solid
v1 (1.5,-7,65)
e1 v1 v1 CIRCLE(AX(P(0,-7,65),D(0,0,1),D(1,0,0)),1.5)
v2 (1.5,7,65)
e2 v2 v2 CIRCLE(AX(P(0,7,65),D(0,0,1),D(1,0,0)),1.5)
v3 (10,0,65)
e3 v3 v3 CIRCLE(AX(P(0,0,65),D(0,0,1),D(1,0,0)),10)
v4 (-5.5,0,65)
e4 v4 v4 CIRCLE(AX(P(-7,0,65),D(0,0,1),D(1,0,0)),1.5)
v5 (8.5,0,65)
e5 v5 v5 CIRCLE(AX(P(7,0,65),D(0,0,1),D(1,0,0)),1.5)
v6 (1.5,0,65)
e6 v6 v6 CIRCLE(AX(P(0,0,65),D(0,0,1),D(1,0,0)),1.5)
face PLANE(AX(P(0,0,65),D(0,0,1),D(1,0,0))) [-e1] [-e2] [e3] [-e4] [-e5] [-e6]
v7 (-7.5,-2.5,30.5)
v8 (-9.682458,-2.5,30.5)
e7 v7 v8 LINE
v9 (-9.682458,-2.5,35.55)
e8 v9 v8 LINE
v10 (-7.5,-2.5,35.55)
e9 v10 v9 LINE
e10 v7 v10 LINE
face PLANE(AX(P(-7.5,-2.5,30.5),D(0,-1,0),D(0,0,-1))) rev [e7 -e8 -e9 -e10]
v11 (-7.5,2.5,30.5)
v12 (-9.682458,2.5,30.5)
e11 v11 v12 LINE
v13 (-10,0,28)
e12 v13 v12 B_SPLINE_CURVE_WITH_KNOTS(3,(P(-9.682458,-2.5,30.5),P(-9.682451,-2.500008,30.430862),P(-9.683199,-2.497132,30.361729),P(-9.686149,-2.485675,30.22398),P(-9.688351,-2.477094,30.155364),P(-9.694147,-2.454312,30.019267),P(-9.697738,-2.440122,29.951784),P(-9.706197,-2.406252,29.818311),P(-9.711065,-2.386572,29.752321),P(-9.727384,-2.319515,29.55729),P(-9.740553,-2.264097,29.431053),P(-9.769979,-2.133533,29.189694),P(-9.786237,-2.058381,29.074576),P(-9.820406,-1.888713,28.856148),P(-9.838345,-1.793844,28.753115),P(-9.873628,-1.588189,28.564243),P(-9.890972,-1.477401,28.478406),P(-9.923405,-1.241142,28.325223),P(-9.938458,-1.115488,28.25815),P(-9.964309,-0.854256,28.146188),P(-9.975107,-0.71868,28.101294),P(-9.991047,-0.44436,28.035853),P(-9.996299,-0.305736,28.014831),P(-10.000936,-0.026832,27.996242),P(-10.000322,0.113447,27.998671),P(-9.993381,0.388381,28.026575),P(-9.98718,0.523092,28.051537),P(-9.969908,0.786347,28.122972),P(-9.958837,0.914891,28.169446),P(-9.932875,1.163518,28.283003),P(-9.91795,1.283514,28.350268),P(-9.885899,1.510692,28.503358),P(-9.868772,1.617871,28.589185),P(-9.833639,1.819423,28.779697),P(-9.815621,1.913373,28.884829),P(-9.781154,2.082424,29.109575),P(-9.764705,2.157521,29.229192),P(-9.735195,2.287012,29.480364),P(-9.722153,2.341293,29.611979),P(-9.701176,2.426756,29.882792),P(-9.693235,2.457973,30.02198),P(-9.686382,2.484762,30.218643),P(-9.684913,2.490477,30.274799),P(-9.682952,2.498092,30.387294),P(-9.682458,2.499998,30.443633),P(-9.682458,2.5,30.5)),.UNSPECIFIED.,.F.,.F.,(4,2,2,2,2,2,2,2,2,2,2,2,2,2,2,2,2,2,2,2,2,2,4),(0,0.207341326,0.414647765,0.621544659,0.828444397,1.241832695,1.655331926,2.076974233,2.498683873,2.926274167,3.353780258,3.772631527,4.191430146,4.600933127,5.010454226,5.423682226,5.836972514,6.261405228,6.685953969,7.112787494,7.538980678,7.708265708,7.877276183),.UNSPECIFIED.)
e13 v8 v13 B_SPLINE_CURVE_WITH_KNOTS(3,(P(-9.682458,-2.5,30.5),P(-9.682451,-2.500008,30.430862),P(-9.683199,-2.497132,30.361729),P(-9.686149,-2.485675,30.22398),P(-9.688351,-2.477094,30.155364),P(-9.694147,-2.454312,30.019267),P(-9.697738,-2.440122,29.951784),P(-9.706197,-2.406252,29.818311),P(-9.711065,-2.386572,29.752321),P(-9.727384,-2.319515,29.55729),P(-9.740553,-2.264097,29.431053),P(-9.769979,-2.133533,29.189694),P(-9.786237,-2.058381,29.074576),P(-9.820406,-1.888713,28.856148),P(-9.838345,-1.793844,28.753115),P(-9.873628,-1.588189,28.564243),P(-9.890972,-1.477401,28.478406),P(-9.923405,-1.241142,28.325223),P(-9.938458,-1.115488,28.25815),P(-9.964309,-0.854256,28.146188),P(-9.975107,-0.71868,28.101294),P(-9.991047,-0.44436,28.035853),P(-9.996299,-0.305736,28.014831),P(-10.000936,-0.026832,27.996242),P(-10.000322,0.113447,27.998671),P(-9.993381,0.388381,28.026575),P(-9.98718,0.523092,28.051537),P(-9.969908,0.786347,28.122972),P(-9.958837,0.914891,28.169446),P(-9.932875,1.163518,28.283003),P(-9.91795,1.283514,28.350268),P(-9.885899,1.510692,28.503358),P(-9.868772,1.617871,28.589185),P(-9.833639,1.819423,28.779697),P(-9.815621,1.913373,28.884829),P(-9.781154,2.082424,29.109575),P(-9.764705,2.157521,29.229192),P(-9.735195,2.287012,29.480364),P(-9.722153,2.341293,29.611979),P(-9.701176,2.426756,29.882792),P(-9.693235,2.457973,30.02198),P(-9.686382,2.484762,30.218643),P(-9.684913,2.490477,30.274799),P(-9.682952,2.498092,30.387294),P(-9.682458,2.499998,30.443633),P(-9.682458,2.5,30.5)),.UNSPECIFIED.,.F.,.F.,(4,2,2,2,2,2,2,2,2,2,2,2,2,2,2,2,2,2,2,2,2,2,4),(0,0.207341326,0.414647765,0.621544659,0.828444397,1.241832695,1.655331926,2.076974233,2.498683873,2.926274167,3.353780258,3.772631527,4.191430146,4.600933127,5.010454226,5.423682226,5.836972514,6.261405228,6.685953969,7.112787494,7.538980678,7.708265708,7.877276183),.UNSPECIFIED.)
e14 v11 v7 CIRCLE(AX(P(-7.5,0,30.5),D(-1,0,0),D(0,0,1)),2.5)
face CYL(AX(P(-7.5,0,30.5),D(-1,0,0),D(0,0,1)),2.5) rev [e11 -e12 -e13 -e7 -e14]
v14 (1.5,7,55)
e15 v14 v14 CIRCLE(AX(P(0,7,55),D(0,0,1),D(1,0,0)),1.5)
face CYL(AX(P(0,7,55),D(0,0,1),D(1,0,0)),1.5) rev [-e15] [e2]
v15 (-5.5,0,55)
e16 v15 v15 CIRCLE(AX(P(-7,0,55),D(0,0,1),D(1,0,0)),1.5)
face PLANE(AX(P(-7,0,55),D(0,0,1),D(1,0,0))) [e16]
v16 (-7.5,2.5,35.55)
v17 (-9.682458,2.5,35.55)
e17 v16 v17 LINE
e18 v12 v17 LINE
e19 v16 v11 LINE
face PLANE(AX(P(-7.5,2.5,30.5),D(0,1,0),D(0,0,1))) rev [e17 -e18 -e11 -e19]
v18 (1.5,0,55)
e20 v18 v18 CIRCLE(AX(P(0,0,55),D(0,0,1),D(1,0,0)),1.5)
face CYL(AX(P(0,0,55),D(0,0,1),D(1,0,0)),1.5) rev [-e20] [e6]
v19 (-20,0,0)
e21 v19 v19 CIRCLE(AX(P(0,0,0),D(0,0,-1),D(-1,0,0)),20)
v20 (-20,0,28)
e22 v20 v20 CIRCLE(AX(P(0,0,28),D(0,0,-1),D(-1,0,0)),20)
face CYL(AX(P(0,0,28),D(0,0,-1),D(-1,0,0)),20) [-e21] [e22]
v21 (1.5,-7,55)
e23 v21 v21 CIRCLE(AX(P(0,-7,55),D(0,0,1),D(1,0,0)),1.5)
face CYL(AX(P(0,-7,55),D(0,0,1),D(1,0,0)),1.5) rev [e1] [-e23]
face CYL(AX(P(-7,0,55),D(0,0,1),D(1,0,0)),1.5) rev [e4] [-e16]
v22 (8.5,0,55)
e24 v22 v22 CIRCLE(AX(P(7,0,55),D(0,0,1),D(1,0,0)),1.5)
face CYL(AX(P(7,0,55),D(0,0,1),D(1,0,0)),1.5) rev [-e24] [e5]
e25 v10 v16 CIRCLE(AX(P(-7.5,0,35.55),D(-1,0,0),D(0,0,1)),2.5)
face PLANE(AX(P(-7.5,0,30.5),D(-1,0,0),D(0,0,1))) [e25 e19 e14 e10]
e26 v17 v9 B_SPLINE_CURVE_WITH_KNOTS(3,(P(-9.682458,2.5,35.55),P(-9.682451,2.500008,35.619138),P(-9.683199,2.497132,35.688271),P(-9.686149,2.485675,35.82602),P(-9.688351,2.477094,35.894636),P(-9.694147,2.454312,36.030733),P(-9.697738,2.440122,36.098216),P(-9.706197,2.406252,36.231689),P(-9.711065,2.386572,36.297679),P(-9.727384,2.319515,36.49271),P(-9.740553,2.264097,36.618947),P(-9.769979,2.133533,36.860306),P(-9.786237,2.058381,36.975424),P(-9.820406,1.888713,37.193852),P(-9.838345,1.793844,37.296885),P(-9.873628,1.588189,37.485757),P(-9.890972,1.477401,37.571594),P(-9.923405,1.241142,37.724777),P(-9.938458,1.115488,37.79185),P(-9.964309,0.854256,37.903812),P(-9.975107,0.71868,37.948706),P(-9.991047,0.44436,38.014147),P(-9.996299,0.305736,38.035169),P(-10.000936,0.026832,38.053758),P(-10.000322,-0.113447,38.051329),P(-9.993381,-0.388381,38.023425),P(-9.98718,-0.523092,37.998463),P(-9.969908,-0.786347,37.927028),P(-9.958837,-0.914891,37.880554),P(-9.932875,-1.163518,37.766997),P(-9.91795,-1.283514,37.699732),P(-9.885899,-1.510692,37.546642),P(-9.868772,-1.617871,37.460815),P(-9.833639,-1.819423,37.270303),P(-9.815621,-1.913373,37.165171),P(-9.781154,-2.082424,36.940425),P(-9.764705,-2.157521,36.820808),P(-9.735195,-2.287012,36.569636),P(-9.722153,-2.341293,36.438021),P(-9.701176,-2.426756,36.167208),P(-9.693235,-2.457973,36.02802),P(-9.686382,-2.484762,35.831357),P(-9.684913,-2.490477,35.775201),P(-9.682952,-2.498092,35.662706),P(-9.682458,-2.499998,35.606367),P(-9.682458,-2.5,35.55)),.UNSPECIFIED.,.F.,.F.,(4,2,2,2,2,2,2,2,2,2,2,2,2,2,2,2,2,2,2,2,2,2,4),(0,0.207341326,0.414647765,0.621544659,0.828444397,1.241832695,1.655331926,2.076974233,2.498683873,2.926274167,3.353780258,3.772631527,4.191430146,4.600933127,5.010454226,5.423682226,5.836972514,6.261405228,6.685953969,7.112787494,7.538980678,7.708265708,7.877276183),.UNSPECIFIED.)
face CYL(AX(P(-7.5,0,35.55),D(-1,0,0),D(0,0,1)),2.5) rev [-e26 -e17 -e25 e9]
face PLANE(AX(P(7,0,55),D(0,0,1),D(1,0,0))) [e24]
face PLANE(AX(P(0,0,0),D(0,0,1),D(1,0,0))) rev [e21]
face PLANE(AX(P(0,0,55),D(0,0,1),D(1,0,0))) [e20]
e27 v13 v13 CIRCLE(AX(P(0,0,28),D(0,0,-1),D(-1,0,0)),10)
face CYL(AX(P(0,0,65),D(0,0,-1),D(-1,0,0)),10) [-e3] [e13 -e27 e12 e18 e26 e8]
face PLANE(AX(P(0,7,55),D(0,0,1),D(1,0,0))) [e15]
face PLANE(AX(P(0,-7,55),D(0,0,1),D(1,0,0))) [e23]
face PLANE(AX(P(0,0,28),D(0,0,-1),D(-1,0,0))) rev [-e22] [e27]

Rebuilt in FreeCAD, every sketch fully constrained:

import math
import FreeCAD as App
import Part
import Sketcher
Q = App.Units.Quantity

doc = App.newDocument("Part")
params = doc.addObject("Spreadsheet::Sheet", "Params")
for row, (alias, value) in enumerate([
    ("sketch1_diameter", "20 mm"),
    ("pad1_length", "65 mm"),
    ("sketch2_radius", "2.5 mm"),
    ("sketch2_height", "5.05 mm"),
    ("pocket1_length", "2.5 mm"),
    ("sketch3_diameter", "40 mm"),
    ("pad2_length", "28 mm"),
    ("sketch4_diameter", "3 mm"),
    ("pocket2_length", "10 mm"),
    ("sketch5_diameter", "3 mm"),
    ("pocket3_length", "10 mm"),
], start=1):
    params.set(f"A{row}", alias)
    params.set(f"B{row}", "=" + value)
    params.setAlias(f"B{row}", alias)

body = doc.addObject("PartDesign::Body", "Body")

# Sketch on XY plane
sketch1 = doc.addObject("Sketcher::SketchObject", "Sketch")
body.addObject(sketch1)
sketch1.AttachmentSupport = (doc.XY_Plane, [""])
sketch1.MapMode = "FlatFace"
sketch1.addGeometry(Part.Circle(App.Vector(0, 0, 0), App.Vector(0, 0, 1), 10), False)
sketch1.addConstraint(Sketcher.Constraint("Coincident", 0, 3, -1, 1))
sketch1.addConstraint(Sketcher.Constraint("Diameter", 0, Q("20 mm")))
sketch1.setExpression("Constraints[1]", "Params.sketch1_diameter")
pad1 = doc.addObject("PartDesign::Pad", "Pad")
body.addObject(pad1)
pad1.Profile = sketch1
pad1.setExpression("Length", "Params.pad1_length")

# Sketch on YZ plane
sketch2 = doc.addObject("Sketcher::SketchObject", "Sketch001")
body.addObject(sketch2)
sketch2.AttachmentSupport = (doc.YZ_Plane, [""])
sketch2.MapMode = "FlatFace"
sketch2.AttachmentOffset = App.Placement(App.Vector(0, 0, -10), App.Rotation())
sketch2.addGeometry(Part.LineSegment(App.Vector(2.5, 35.5, 0), App.Vector(2.5, 30.5, 0)), False)
sketch2.addGeometry(Part.ArcOfCircle(Part.Circle(App.Vector(0, 30.5, 0), App.Vector(0, 0, 1), 2.5), math.radians(180), math.radians(360)), False)
sketch2.addGeometry(Part.LineSegment(App.Vector(-2.5, 30.5, 0), App.Vector(-2.5, 35.5, 0)), False)
sketch2.addGeometry(Part.ArcOfCircle(Part.Circle(App.Vector(0, 35.5, 0), App.Vector(0, 0, 1), 2.5), math.radians(0), math.radians(180)), False)
sketch2.addConstraint(Sketcher.Constraint("Tangent", 0, 2, 1, 2))
sketch2.addConstraint(Sketcher.Constraint("Tangent", 1, 1, 2, 1))
sketch2.addConstraint(Sketcher.Constraint("Tangent", 2, 2, 3, 2))
sketch2.addConstraint(Sketcher.Constraint("Tangent", 3, 1, 0, 1))
sketch2.addConstraint(Sketcher.Constraint("Vertical", 0))
sketch2.addConstraint(Sketcher.Constraint("Vertical", 2))
sketch2.addConstraint(Sketcher.Constraint("PointOnObject", 1, 3, -2))
sketch2.addConstraint(Sketcher.Constraint("Radius", 1, Q("2.5 mm")))
sketch2.addConstraint(Sketcher.Constraint("DistanceY", 0, 2, 0, 1, Q("5.05 mm")))
sketch2.addConstraint(Sketcher.Constraint("DistanceY", -1, 1, 1, 3, Q("30.5 mm")))
sketch2.setExpression("Constraints[7]", "Params.sketch2_radius")
sketch2.setExpression("Constraints[8]", "Params.sketch2_height")
pocket1 = doc.addObject("PartDesign::Pocket", "Pocket")
body.addObject(pocket1)
pocket1.Profile = sketch2
pocket1.setExpression("Length", "Params.pocket1_length")
pocket1.Reversed = True

# Sketch on XY plane
sketch3 = doc.addObject("Sketcher::SketchObject", "Sketch002")
body.addObject(sketch3)
sketch3.AttachmentSupport = (doc.XY_Plane, [""])
sketch3.MapMode = "FlatFace"
sketch3.addGeometry(Part.Circle(App.Vector(0, 0, 0), App.Vector(0, 0, 1), 20), False)
sketch3.addConstraint(Sketcher.Constraint("Coincident", 0, 3, -1, 1))
sketch3.addConstraint(Sketcher.Constraint("Diameter", 0, Q("40 mm")))
sketch3.setExpression("Constraints[1]", "Params.sketch3_diameter")
pad2 = doc.addObject("PartDesign::Pad", "Pad001")
body.addObject(pad2)
pad2.Profile = sketch3
pad2.setExpression("Length", "Params.pad2_length")

# Sketch on XY plane
sketch4 = doc.addObject("Sketcher::SketchObject", "Sketch003")
body.addObject(sketch4)
sketch4.AttachmentSupport = (doc.XY_Plane, [""])
sketch4.MapMode = "FlatFace"
sketch4.AttachmentOffset = App.Placement(App.Vector(0, 0, 65), App.Rotation())
sketch4.addGeometry(Part.Circle(App.Vector(0, 7, 0), App.Vector(0, 0, 1), 1.5), False)
sketch4.addGeometry(Part.Circle(App.Vector(7, 0, 0), App.Vector(0, 0, 1), 1.5), False)
sketch4.addGeometry(Part.Circle(App.Vector(0, -7, 0), App.Vector(0, 0, 1), 1.5), False)
sketch4.addGeometry(Part.Circle(App.Vector(-7, 0, 0), App.Vector(0, 0, 1), 1.5), False)
sketch4.addConstraint(Sketcher.Constraint("Equal", 0, 1))
sketch4.addConstraint(Sketcher.Constraint("Equal", 1, 2))
sketch4.addConstraint(Sketcher.Constraint("Equal", 2, 3))
sketch4.addConstraint(Sketcher.Constraint("Symmetric", 0, 3, 2, 3, -1, 1))
sketch4.addConstraint(Sketcher.Constraint("Symmetric", 1, 3, 3, 3, -1, 1))
sketch4.addConstraint(Sketcher.Constraint("PointOnObject", 0, 3, -2))
sketch4.addConstraint(Sketcher.Constraint("PointOnObject", 1, 3, -1))
sketch4.addConstraint(Sketcher.Constraint("Diameter", 0, Q("3 mm")))
sketch4.addConstraint(Sketcher.Constraint("DistanceY", -1, 1, 0, 3, Q("7 mm")))
sketch4.addConstraint(Sketcher.Constraint("DistanceX", -1, 1, 1, 3, Q("7 mm")))
sketch4.setExpression("Constraints[7]", "Params.sketch4_diameter")
pocket2 = doc.addObject("PartDesign::Pocket", "Pocket001")
body.addObject(pocket2)
pocket2.Profile = sketch4
pocket2.setExpression("Length", "Params.pocket2_length")

# Sketch on XY plane
sketch5 = doc.addObject("Sketcher::SketchObject", "Sketch004")
body.addObject(sketch5)
sketch5.AttachmentSupport = (doc.XY_Plane, [""])
sketch5.MapMode = "FlatFace"
sketch5.AttachmentOffset = App.Placement(App.Vector(0, 0, 65), App.Rotation())
sketch5.addGeometry(Part.Circle(App.Vector(0, 0, 0), App.Vector(0, 0, 1), 1.5), False)
sketch5.addConstraint(Sketcher.Constraint("Coincident", 0, 3, -1, 1))
sketch5.addConstraint(Sketcher.Constraint("Diameter", 0, Q("3 mm")))
sketch5.setExpression("Constraints[1]", "Params.sketch5_diameter")
pocket3 = doc.addObject("PartDesign::Pocket", "Pocket002")
body.addObject(pocket3)
pocket3.Profile = sketch5
pocket3.setExpression("Length", "Params.pocket3_length")

doc.recompute()
